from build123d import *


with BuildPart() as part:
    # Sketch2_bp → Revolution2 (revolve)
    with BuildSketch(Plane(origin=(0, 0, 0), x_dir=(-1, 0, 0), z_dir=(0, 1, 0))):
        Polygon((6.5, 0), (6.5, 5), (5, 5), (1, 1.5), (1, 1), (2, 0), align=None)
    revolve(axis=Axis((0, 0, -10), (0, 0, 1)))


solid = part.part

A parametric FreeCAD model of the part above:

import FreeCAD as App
import Part
import Sketcher

V = App.Vector
Q = App.Units.Quantity


def add_polygon(sketch, points):
    """Adds a closed chain of lines whose ends are joined by coincident constraints."""
    first, n = sketch.GeometryCount, len(points)
    for a, b in zip(points, points[1:] + points[:1]):
        sketch.addGeometry(Part.LineSegment(App.Vector(*a, 0), App.Vector(*b, 0)), False)
    for i in range(n):
        sketch.addConstraint(Sketcher.Constraint("Coincident", first + i, 2, first + (i + 1) % n, 1))

doc = App.newDocument("Part")
body = doc.addObject("PartDesign::Body", "Body")

sketch1 = doc.addObject("Sketcher::SketchObject", "Sketch")
body.addObject(sketch1)
sketch1.AttachmentSupport = (doc.XZ_Plane, [""])
sketch1.MapMode = "FlatFace"
add_polygon(sketch1, [(-6.5, 0), (-6.5, 5), (-5, 5), (-1, 1.5), (-1, 1), (-2, 0)])
sketch1.addConstraint(Sketcher.Constraint("Vertical", 0))
sketch1.addConstraint(Sketcher.Constraint("Horizontal", 1))
sketch1.addConstraint(Sketcher.Constraint("Vertical", 3))
sketch1.addConstraint(Sketcher.Constraint("Horizontal", 5))
sketch1.addConstraint(Sketcher.Constraint("PointOnObject", 4, 2, -1))
sketch1.addConstraint(Sketcher.Constraint("DistanceY", 0, 1, 0, 2, 5.0))
sketch1.addConstraint(Sketcher.Constraint("Angle", 4, Q("-135 deg")))
sketch1.addConstraint(Sketcher.Constraint("DistanceX", 1, 1, 1, 2, 1.5))
sketch1.addConstraint(Sketcher.Constraint("DistanceX", 5, 2, 5, 1, 4.5))
sketch1.addConstraint(Sketcher.Constraint("DistanceY", 3, 2, 3, 1, 0.5))
sketch1.addConstraint(Sketcher.Constraint("DistanceX", 1, 2, -1, 1, 5.0))
sketch1.addConstraint(Sketcher.Constraint("DistanceX", 2, 2, -1, 1, 1.0))
revolution = doc.addObject("PartDesign::Revolution", "Revolution")
body.addObject(revolution)
revolution.Profile = sketch1
revolution.ReferenceAxis = (sketch1, ["V_Axis"])
revolution.Angle = 360

doc.recompute()
